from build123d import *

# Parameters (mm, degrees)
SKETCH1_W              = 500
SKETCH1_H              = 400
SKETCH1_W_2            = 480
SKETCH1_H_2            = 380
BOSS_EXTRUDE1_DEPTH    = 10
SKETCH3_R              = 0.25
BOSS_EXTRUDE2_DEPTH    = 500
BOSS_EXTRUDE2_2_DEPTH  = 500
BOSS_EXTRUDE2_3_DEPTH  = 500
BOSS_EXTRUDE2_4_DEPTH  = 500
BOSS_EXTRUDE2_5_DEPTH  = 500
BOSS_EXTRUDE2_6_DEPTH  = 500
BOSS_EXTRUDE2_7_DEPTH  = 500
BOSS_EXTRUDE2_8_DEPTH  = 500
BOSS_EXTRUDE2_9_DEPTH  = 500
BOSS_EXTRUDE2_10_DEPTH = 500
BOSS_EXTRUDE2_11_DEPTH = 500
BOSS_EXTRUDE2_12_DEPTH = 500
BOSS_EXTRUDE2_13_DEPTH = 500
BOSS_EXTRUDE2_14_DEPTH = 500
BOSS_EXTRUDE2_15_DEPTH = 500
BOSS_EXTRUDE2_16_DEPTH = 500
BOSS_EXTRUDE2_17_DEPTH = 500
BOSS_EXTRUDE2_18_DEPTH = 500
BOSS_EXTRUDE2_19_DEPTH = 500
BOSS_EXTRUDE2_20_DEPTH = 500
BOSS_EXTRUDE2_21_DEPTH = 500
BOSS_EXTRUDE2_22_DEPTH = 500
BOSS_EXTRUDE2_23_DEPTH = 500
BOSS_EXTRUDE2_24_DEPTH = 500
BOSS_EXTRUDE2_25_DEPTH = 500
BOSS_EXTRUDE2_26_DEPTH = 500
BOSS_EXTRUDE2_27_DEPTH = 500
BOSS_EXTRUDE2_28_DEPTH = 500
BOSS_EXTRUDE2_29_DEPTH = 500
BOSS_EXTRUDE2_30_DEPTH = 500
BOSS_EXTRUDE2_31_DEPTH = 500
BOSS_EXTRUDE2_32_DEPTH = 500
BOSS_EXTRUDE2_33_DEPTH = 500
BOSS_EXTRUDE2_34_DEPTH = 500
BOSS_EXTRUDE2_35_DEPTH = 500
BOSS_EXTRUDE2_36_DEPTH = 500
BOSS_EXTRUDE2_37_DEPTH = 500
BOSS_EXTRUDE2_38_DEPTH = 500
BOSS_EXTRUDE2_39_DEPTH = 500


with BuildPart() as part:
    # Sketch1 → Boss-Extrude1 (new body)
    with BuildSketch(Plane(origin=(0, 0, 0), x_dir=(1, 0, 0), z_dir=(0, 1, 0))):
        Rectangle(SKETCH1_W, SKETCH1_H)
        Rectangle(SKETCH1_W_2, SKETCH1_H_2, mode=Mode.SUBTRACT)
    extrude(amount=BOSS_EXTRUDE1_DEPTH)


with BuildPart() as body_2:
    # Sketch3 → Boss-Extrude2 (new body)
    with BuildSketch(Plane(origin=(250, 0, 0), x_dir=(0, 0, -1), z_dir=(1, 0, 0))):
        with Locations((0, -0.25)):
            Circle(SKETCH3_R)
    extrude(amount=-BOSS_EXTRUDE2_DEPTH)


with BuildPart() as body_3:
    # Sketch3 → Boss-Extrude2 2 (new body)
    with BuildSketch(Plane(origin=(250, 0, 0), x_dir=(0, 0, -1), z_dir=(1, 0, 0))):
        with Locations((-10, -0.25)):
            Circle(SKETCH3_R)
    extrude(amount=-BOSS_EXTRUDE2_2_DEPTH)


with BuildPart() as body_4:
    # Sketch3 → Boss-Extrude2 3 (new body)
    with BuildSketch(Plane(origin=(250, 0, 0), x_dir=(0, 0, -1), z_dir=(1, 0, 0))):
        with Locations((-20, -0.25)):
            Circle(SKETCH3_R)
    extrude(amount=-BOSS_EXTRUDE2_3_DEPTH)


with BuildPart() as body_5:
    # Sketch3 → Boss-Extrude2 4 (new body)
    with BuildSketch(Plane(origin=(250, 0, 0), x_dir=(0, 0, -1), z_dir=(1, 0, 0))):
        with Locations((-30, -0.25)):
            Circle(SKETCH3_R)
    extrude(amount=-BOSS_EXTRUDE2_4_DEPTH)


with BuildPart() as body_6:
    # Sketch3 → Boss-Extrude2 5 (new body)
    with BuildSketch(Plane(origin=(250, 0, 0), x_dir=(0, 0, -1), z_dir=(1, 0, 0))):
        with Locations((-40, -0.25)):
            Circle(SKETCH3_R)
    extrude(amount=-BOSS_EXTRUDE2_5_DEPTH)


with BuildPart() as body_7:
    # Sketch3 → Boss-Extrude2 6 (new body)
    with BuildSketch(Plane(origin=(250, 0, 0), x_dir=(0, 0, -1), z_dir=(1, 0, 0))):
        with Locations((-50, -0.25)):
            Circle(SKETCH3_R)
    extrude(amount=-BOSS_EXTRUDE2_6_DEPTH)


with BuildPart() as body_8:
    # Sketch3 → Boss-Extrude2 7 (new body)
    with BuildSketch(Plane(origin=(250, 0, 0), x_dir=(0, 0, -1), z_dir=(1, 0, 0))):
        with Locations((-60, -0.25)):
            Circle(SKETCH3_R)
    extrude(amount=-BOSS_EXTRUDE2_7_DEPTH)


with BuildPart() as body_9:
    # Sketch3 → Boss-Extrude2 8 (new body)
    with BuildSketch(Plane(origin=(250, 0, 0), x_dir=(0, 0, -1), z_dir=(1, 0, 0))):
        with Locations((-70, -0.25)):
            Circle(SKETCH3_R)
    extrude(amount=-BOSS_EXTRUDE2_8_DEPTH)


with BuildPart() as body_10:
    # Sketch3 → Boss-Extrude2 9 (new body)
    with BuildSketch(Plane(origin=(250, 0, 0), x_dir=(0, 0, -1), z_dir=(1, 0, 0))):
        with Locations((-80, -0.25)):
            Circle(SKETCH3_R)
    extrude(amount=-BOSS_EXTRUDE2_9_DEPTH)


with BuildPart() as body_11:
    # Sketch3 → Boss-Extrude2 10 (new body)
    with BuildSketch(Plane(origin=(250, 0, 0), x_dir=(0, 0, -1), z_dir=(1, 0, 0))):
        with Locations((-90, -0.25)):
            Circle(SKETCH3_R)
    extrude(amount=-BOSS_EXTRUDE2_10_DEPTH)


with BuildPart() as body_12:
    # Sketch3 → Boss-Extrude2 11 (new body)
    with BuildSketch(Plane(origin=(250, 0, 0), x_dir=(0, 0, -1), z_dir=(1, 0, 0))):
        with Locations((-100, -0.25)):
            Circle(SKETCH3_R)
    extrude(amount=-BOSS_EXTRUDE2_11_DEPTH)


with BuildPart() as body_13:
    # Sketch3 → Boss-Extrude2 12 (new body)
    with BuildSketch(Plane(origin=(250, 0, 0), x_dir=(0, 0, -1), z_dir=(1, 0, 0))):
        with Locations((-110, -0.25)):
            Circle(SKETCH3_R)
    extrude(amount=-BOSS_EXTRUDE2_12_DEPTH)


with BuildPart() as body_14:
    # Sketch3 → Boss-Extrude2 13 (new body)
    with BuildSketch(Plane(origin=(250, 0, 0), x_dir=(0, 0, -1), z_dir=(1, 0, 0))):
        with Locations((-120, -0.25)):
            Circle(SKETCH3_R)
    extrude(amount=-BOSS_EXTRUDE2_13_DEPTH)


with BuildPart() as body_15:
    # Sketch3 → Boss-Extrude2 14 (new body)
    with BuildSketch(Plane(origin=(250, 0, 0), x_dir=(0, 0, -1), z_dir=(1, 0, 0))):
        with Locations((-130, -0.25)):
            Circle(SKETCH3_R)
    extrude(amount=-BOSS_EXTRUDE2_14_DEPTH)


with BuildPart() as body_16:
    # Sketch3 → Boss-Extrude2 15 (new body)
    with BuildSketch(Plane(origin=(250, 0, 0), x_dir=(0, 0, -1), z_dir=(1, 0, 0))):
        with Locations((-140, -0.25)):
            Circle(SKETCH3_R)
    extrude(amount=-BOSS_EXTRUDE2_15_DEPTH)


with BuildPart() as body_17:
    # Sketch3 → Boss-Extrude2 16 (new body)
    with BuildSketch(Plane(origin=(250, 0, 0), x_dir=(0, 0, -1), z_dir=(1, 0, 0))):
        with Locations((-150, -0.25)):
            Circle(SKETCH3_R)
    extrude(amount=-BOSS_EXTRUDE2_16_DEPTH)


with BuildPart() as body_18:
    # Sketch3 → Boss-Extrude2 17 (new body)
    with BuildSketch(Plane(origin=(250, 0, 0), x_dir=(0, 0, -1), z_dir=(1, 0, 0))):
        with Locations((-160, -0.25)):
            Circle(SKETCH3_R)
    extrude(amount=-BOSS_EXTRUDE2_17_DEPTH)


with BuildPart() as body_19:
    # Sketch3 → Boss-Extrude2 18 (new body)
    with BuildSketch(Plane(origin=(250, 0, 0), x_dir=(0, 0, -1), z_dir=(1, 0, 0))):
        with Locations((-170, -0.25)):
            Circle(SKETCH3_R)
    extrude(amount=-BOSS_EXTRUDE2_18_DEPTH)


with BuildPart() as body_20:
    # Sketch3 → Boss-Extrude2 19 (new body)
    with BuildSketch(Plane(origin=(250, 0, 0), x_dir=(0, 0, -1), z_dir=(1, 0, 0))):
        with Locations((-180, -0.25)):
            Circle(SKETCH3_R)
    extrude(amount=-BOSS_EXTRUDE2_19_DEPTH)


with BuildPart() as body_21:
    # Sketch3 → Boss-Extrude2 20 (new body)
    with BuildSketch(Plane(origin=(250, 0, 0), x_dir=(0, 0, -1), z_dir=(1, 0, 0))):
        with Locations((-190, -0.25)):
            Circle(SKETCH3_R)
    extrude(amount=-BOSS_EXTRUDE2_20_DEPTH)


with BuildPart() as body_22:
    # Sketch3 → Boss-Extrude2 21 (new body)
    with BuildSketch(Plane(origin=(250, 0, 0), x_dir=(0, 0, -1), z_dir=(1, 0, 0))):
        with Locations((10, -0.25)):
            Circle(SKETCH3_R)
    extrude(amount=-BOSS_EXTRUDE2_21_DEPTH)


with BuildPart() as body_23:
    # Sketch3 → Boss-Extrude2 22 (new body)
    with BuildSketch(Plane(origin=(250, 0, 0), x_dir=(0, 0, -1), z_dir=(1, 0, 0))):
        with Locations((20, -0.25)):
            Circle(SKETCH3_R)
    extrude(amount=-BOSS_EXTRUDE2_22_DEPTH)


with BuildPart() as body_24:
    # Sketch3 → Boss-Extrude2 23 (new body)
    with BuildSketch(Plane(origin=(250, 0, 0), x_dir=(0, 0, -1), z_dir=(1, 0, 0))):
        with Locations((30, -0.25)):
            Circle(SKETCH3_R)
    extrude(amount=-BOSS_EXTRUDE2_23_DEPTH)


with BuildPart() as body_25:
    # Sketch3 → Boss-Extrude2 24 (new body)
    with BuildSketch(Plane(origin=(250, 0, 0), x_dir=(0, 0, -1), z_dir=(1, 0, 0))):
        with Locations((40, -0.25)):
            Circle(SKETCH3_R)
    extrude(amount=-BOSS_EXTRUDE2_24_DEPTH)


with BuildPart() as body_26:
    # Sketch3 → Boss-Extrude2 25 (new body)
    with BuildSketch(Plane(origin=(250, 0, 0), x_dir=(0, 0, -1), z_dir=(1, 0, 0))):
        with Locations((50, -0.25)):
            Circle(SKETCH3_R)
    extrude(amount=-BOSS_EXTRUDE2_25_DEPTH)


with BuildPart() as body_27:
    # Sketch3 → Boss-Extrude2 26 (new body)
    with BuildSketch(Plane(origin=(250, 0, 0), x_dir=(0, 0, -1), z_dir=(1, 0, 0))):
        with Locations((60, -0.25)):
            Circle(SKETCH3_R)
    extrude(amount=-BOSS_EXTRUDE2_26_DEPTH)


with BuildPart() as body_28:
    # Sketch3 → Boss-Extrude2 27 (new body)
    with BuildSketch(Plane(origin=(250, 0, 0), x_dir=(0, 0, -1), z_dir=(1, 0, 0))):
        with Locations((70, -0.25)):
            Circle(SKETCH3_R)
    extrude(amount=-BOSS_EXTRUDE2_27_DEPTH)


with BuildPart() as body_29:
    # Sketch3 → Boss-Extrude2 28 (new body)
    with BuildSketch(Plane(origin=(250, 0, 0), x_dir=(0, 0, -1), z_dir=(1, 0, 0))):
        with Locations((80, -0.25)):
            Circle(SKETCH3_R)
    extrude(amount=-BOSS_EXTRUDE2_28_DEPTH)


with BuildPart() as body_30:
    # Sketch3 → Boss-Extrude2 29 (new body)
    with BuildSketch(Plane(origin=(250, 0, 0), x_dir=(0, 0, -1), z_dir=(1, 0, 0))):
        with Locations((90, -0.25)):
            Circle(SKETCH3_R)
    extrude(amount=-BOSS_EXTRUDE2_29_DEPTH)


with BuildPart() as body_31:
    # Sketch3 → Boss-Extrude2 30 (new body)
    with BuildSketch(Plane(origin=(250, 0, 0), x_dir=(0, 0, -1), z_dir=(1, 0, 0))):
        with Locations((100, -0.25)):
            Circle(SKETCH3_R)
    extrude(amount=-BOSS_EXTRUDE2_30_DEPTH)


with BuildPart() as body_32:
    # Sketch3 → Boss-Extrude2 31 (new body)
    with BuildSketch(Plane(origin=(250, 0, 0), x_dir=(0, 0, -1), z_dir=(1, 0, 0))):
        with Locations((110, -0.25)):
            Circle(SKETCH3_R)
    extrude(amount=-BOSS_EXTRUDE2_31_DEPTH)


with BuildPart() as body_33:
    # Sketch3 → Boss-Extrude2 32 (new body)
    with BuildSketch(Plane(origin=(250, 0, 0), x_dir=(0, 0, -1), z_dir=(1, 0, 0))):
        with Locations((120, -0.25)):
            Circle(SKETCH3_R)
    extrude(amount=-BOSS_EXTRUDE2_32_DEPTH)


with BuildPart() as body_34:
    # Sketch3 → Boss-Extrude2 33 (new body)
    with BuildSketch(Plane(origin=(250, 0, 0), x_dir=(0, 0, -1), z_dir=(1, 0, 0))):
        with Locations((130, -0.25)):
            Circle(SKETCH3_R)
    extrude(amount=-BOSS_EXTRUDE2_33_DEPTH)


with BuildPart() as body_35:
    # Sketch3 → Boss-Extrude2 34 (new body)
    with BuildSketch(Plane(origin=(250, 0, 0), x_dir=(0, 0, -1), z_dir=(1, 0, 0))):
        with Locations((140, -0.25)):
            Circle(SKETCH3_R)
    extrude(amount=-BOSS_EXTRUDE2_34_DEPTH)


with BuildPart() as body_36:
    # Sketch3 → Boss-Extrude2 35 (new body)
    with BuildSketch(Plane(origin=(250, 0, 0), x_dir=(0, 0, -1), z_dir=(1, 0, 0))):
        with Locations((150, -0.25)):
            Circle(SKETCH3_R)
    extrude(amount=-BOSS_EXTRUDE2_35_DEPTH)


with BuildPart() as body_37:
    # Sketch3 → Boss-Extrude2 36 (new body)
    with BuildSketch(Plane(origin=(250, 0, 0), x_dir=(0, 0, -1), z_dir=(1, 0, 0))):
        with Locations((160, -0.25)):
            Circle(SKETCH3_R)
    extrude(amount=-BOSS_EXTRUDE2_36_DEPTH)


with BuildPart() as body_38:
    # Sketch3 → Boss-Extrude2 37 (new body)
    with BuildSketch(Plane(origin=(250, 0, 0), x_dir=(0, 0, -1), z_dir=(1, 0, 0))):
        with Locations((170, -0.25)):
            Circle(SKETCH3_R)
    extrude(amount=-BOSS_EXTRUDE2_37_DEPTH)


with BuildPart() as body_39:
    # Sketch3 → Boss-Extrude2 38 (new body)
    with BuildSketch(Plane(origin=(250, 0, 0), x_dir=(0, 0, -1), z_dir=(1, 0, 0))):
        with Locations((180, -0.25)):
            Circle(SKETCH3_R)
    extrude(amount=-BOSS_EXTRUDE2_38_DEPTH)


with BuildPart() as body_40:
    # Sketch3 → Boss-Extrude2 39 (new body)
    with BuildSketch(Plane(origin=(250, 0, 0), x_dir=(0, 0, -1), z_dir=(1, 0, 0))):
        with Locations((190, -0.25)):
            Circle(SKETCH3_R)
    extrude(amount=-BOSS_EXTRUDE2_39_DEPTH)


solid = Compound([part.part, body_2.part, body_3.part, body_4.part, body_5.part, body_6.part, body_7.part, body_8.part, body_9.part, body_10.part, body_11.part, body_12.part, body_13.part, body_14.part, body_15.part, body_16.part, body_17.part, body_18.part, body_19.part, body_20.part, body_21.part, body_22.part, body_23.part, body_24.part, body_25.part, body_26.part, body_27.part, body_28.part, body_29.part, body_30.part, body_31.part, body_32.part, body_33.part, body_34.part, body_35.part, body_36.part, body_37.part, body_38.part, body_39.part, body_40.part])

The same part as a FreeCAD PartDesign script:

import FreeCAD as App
import Part
import Sketcher


def add_polygon(sketch, points):
    """Adds a closed chain of lines whose ends are joined by coincident constraints."""
    first, n = sketch.GeometryCount, len(points)
    for a, b in zip(points, points[1:] + points[:1]):
        sketch.addGeometry(Part.LineSegment(App.Vector(*a, 0), App.Vector(*b, 0)), False)
    for i in range(n):
        sketch.addConstraint(Sketcher.Constraint("Coincident", first + i, 2, first + (i + 1) % n, 1))

doc = App.newDocument("Part")
params = doc.addObject("Spreadsheet::Sheet", "Params")
for row, (alias, value) in enumerate([
    ("sketch1_width", "500 mm"),
    ("sketch1_width2", "480 mm"),
    ("sketch1_height", "400 mm"),
    ("sketch1_height2", "380 mm"),
    ("pad1_length", "10 mm"),
    ("sketch2_diameter", "0.5 mm"),
    ("pad2_length", "500 mm"),
    ("sketch3_diameter", "0.5 mm"),
    ("pad3_length", "500 mm"),
    ("sketch4_diameter", "0.5 mm"),
    ("pad4_length", "500 mm"),
    ("sketch5_diameter", "0.5 mm"),
    ("pad5_length", "500 mm"),
    ("sketch6_diameter", "0.5 mm"),
    ("pad6_length", "500 mm"),
    ("sketch7_diameter", "0.5 mm"),
    ("pad7_length", "500 mm"),
    ("sketch8_diameter", "0.5 mm"),
    ("pad8_length", "500 mm"),
    ("sketch9_diameter", "0.5 mm"),
    ("pad9_length", "500 mm"),
    ("sketch10_diameter", "0.5 mm"),
    ("pad10_length", "500 mm"),
    ("sketch11_diameter", "0.5 mm"),
    ("pad11_length", "500 mm"),
    ("sketch12_diameter", "0.5 mm"),
    ("pad12_length", "500 mm"),
    ("sketch13_diameter", "0.5 mm"),
    ("pad13_length", "500 mm"),
    ("sketch14_diameter", "0.5 mm"),
    ("pad14_length", "500 mm"),
    ("sketch15_diameter", "0.5 mm"),
    ("pad15_length", "500 mm"),
    ("sketch16_diameter", "0.5 mm"),
    ("pad16_length", "500 mm"),
    ("sketch17_diameter", "0.5 mm"),
    ("pad17_length", "500 mm"),
    ("sketch18_diameter", "0.5 mm"),
    ("pad18_length", "500 mm"),
    ("sketch19_diameter", "0.5 mm"),
    ("pad19_length", "500 mm"),
    ("sketch20_diameter", "0.5 mm"),
    ("pad20_length", "500 mm"),
    ("sketch21_diameter", "0.5 mm"),
    ("pad21_length", "500 mm"),
    ("sketch22_diameter", "0.5 mm"),
    ("pad22_length", "500 mm"),
    ("sketch23_diameter", "0.5 mm"),
    ("pad23_length", "500 mm"),
    ("sketch24_diameter", "0.5 mm"),
    ("pad24_length", "500 mm"),
    ("sketch25_diameter", "0.5 mm"),
    ("pad25_length", "500 mm"),
    ("sketch26_diameter", "0.5 mm"),
    ("pad26_length", "500 mm"),
    ("sketch27_diameter", "0.5 mm"),
    ("pad27_length", "500 mm"),
    ("sketch28_diameter", "0.5 mm"),
    ("pad28_length", "500 mm"),
    ("sketch29_diameter", "0.5 mm"),
    ("pad29_length", "500 mm"),
    ("sketch30_diameter", "0.5 mm"),
    ("pad30_length", "500 mm"),
    ("sketch31_diameter", "0.5 mm"),
    ("pad31_length", "500 mm"),
    ("sketch32_diameter", "0.5 mm"),
    ("pad32_length", "500 mm"),
    ("sketch33_diameter", "0.5 mm"),
    ("pad33_length", "500 mm"),
    ("sketch34_diameter", "0.5 mm"),
    ("pad34_length", "500 mm"),
    ("sketch35_diameter", "0.5 mm"),
    ("pad35_length", "500 mm"),
    ("sketch36_diameter", "0.5 mm"),
    ("pad36_length", "500 mm"),
    ("sketch37_diameter", "0.5 mm"),
    ("pad37_length", "500 mm"),
    ("sketch38_diameter", "0.5 mm"),
    ("pad38_length", "500 mm"),
    ("sketch39_diameter", "0.5 mm"),
    ("pad39_length", "500 mm"),
    ("sketch40_diameter", "0.5 mm"),
    ("pad40_length", "500 mm"),
], start=1):
    params.set(f"A{row}", alias)
    params.set(f"B{row}", "=" + value)
    params.setAlias(f"B{row}", alias)

body = doc.addObject("PartDesign::Body", "Body")

# Sketch on XZ plane
sketch1 = body.newObject("Sketcher::SketchObject", "Sketch")
sketch1.AttachmentSupport = (doc.getObject("XZ_Plane"), [""])
sketch1.MapMode = "FlatFace"
add_polygon(sketch1, [(-250, -200), (-250, 200), (250, 200), (250, -200)])  # lines 0-3
add_polygon(sketch1, [(240, 190), (-240, 190), (-240, -190), (240, -190)])  # lines 4-7
sketch1.addConstraint([
    Sketcher.Constraint("Vertical", 0),
    Sketcher.Constraint("Horizontal", 1),
    Sketcher.Constraint("Vertical", 2),
    Sketcher.Constraint("Horizontal", 3),
    Sketcher.Constraint("Horizontal", 4),
    Sketcher.Constraint("Vertical", 5),
    Sketcher.Constraint("Horizontal", 6),
    Sketcher.Constraint("Vertical", 7),
    Sketcher.Constraint("Symmetric", 0, 2, 2, 2, -1, 1),
    Sketcher.Constraint("Symmetric", 4, 2, 6, 2, -1, 1),
    Sketcher.Constraint("DistanceX", 1, 1, 1, 2, 500.0),
    Sketcher.Constraint("DistanceX", 4, 2, 4, 1, 480.0),
    Sketcher.Constraint("DistanceY", 0, 1, 0, 2, 400.0),
    Sketcher.Constraint("DistanceY", 5, 2, 5, 1, 380.0),
])
sketch1.setExpression("Constraints[18]", "Params.sketch1_width")
sketch1.setExpression("Constraints[19]", "Params.sketch1_width2")
sketch1.setExpression("Constraints[20]", "Params.sketch1_height")
sketch1.setExpression("Constraints[21]", "Params.sketch1_height2")
pad1 = body.newObject("PartDesign::Pad", "Pad")
pad1.Profile = sketch1
pad1.setExpression("Length", "Params.pad1_length")
pad1.Reversed = True
body2 = doc.addObject("PartDesign::Body", "Body001")

# Sketch on YZ plane
sketch2 = body2.newObject("Sketcher::SketchObject", "Sketch001")
sketch2.AttachmentSupport = (doc.getObject("YZ_Plane001"), [""])
sketch2.MapMode = "FlatFace"
sketch2.AttachmentOffset = App.Placement(App.Vector(0, 0, 250), App.Rotation())
sketch2.addGeometry(Part.Circle(App.Vector(-0.25, 0, 0), App.Vector(0, 0, 1), 0.25), False)
sketch2.addConstraint([
    Sketcher.Constraint("PointOnObject", 0, 3, -1),
    Sketcher.Constraint("Diameter", 0, 0.5),
    Sketcher.Constraint("DistanceX", 0, 3, -1, 1, 0.25),
])
sketch2.setExpression("Constraints[1]", "Params.sketch2_diameter")
pad2 = body2.newObject("PartDesign::Pad", "Pad001")
pad2.Profile = sketch2
pad2.setExpression("Length", "Params.pad2_length")
pad2.Reversed = True
body3 = doc.addObject("PartDesign::Body", "Body002")

# Sketch on YZ plane
sketch3 = body3.newObject("Sketcher::SketchObject", "Sketch002")
sketch3.AttachmentSupport = (doc.getObject("YZ_Plane002"), [""])
sketch3.MapMode = "FlatFace"
sketch3.AttachmentOffset = App.Placement(App.Vector(0, 0, 250), App.Rotation())
sketch3.addGeometry(Part.Circle(App.Vector(-0.25, 10, 0), App.Vector(0, 0, 1), 0.25), False)
sketch3.addConstraint([
    Sketcher.Constraint("Diameter", 0, 0.5),
    Sketcher.Constraint("DistanceY", -1, 1, 0, 3, 10.0),
    Sketcher.Constraint("DistanceX", 0, 3, -1, 1, 0.25),
])
sketch3.setExpression("Constraints[0]", "Params.sketch3_diameter")
pad3 = body3.newObject("PartDesign::Pad", "Pad002")
pad3.Profile = sketch3
pad3.setExpression("Length", "Params.pad3_length")
pad3.Reversed = True
body4 = doc.addObject("PartDesign::Body", "Body003")

# Sketch on YZ plane
sketch4 = body4.newObject("Sketcher::SketchObject", "Sketch003")
sketch4.AttachmentSupport = (doc.getObject("YZ_Plane003"), [""])
sketch4.MapMode = "FlatFace"
sketch4.AttachmentOffset = App.Placement(App.Vector(0, 0, 250), App.Rotation())
sketch4.addGeometry(Part.Circle(App.Vector(-0.25, 20, 0), App.Vector(0, 0, 1), 0.25), False)
sketch4.addConstraint([
    Sketcher.Constraint("Diameter", 0, 0.5),
    Sketcher.Constraint("DistanceY", -1, 1, 0, 3, 20.0),
    Sketcher.Constraint("DistanceX", 0, 3, -1, 1, 0.25),
])
sketch4.setExpression("Constraints[0]", "Params.sketch4_diameter")
pad4 = body4.newObject("PartDesign::Pad", "Pad003")
pad4.Profile = sketch4
pad4.setExpression("Length", "Params.pad4_length")
pad4.Reversed = True
body5 = doc.addObject("PartDesign::Body", "Body004")

# Sketch on YZ plane
sketch5 = body5.newObject("Sketcher::SketchObject", "Sketch004")
sketch5.AttachmentSupport = (doc.getObject("YZ_Plane004"), [""])
sketch5.MapMode = "FlatFace"
sketch5.AttachmentOffset = App.Placement(App.Vector(0, 0, 250), App.Rotation())
sketch5.addGeometry(Part.Circle(App.Vector(-0.25, 30, 0), App.Vector(0, 0, 1), 0.25), False)
sketch5.addConstraint([
    Sketcher.Constraint("Diameter", 0, 0.5),
    Sketcher.Constraint("DistanceY", -1, 1, 0, 3, 30.0),
    Sketcher.Constraint("DistanceX", 0, 3, -1, 1, 0.25),
])
sketch5.setExpression("Constraints[0]", "Params.sketch5_diameter")
pad5 = body5.newObject("PartDesign::Pad", "Pad004")
pad5.Profile = sketch5
pad5.setExpression("Length", "Params.pad5_length")
pad5.Reversed = True
body6 = doc.addObject("PartDesign::Body", "Body005")

# Sketch on YZ plane
sketch6 = body6.newObject("Sketcher::SketchObject", "Sketch005")
sketch6.AttachmentSupport = (doc.getObject("YZ_Plane005"), [""])
sketch6.MapMode = "FlatFace"
sketch6.AttachmentOffset = App.Placement(App.Vector(0, 0, 250), App.Rotation())
sketch6.addGeometry(Part.Circle(App.Vector(-0.25, 40, 0), App.Vector(0, 0, 1), 0.25), False)
sketch6.addConstraint([
    Sketcher.Constraint("Diameter", 0, 0.5),
    Sketcher.Constraint("DistanceY", -1, 1, 0, 3, 40.0),
    Sketcher.Constraint("DistanceX", 0, 3, -1, 1, 0.25),
])
sketch6.setExpression("Constraints[0]", "Params.sketch6_diameter")
pad6 = body6.newObject("PartDesign::Pad", "Pad005")
pad6.Profile = sketch6
pad6.setExpression("Length", "Params.pad6_length")
pad6.Reversed = True
body7 = doc.addObject("PartDesign::Body", "Body006")

# Sketch on YZ plane
sketch7 = body7.newObject("Sketcher::SketchObject", "Sketch006")
sketch7.AttachmentSupport = (doc.getObject("YZ_Plane006"), [""])
sketch7.MapMode = "FlatFace"
sketch7.AttachmentOffset = App.Placement(App.Vector(0, 0, 250), App.Rotation())
sketch7.addGeometry(Part.Circle(App.Vector(-0.25, 50, 0), App.Vector(0, 0, 1), 0.25), False)
sketch7.addConstraint([
    Sketcher.Constraint("Diameter", 0, 0.5),
    Sketcher.Constraint("DistanceY", -1, 1, 0, 3, 50.0),
    Sketcher.Constraint("DistanceX", 0, 3, -1, 1, 0.25),
])
sketch7.setExpression("Constraints[0]", "Params.sketch7_diameter")
pad7 = body7.newObject("PartDesign::Pad", "Pad006")
pad7.Profile = sketch7
pad7.setExpression("Length", "Params.pad7_length")
pad7.Reversed = True
body8 = doc.addObject("PartDesign::Body", "Body007")

# Sketch on YZ plane
sketch8 = body8.newObject("Sketcher::SketchObject", "Sketch007")
sketch8.AttachmentSupport = (doc.getObject("YZ_Plane007"), [""])
sketch8.MapMode = "FlatFace"
sketch8.AttachmentOffset = App.Placement(App.Vector(0, 0, 250), App.Rotation())
sketch8.addGeometry(Part.Circle(App.Vector(-0.25, 60, 0), App.Vector(0, 0, 1), 0.25), False)
sketch8.addConstraint([
    Sketcher.Constraint("Diameter", 0, 0.5),
    Sketcher.Constraint("DistanceY", -1, 1, 0, 3, 60.0),
    Sketcher.Constraint("DistanceX", 0, 3, -1, 1, 0.25),
])
sketch8.setExpression("Constraints[0]", "Params.sketch8_diameter")
pad8 = body8.newObject("PartDesign::Pad", "Pad007")
pad8.Profile = sketch8
pad8.setExpression("Length", "Params.pad8_length")
pad8.Reversed = True
body9 = doc.addObject("PartDesign::Body", "Body008")

# Sketch on YZ plane
sketch9 = body9.newObject("Sketcher::SketchObject", "Sketch008")
sketch9.AttachmentSupport = (doc.getObject("YZ_Plane008"), [""])
sketch9.MapMode = "FlatFace"
sketch9.AttachmentOffset = App.Placement(App.Vector(0, 0, 250), App.Rotation())
sketch9.addGeometry(Part.Circle(App.Vector(-0.25, 70, 0), App.Vector(0, 0, 1), 0.25), False)
sketch9.addConstraint([
    Sketcher.Constraint("Diameter", 0, 0.5),
    Sketcher.Constraint("DistanceY", -1, 1, 0, 3, 70.0),
    Sketcher.Constraint("DistanceX", 0, 3, -1, 1, 0.25),
])
sketch9.setExpression("Constraints[0]", "Params.sketch9_diameter")
pad9 = body9.newObject("PartDesign::Pad", "Pad008")
pad9.Profile = sketch9
pad9.setExpression("Length", "Params.pad9_length")
pad9.Reversed = True
body10 = doc.addObject("PartDesign::Body", "Body009")

# Sketch on YZ plane
sketch10 = body10.newObject("Sketcher::SketchObject", "Sketch009")
sketch10.AttachmentSupport = (doc.getObject("YZ_Plane009"), [""])
sketch10.MapMode = "FlatFace"
sketch10.AttachmentOffset = App.Placement(App.Vector(0, 0, 250), App.Rotation())
sketch10.addGeometry(Part.Circle(App.Vector(-0.25, 80, 0), App.Vector(0, 0, 1), 0.25), False)
sketch10.addConstraint([
    Sketcher.Constraint("Diameter", 0, 0.5),
    Sketcher.Constraint("DistanceY", -1, 1, 0, 3, 80.0),
    Sketcher.Constraint("DistanceX", 0, 3, -1, 1, 0.25),
])
sketch10.setExpression("Constraints[0]", "Params.sketch10_diameter")
pad10 = body10.newObject("PartDesign::Pad", "Pad009")
pad10.Profile = sketch10
pad10.setExpression("Length", "Params.pad10_length")
pad10.Reversed = True
body11 = doc.addObject("PartDesign::Body", "Body010")

# Sketch on YZ plane
sketch11 = body11.newObject("Sketcher::SketchObject", "Sketch010")
sketch11.AttachmentSupport = (doc.getObject("YZ_Plane010"), [""])
sketch11.MapMode = "FlatFace"
sketch11.AttachmentOffset = App.Placement(App.Vector(0, 0, 250), App.Rotation())
sketch11.addGeometry(Part.Circle(App.Vector(-0.25, 90, 0), App.Vector(0, 0, 1), 0.25), False)
sketch11.addConstraint([
    Sketcher.Constraint("Diameter", 0, 0.5),
    Sketcher.Constraint("DistanceY", -1, 1, 0, 3, 90.0),
    Sketcher.Constraint("DistanceX", 0, 3, -1, 1, 0.25),
])
sketch11.setExpression("Constraints[0]", "Params.sketch11_diameter")
pad11 = body11.newObject("PartDesign::Pad", "Pad010")
pad11.Profile = sketch11
pad11.setExpression("Length", "Params.pad11_length")
pad11.Reversed = True
body12 = doc.addObject("PartDesign::Body", "Body011")

# Sketch on YZ plane
sketch12 = body12.newObject("Sketcher::SketchObject", "Sketch011")
sketch12.AttachmentSupport = (doc.getObject("YZ_Plane011"), [""])
sketch12.MapMode = "FlatFace"
sketch12.AttachmentOffset = App.Placement(App.Vector(0, 0, 250), App.Rotation())
sketch12.addGeometry(Part.Circle(App.Vector(-0.25, 100, 0), App.Vector(0, 0, 1), 0.25), False)
sketch12.addConstraint([
    Sketcher.Constraint("Diameter", 0, 0.5),
    Sketcher.Constraint("DistanceY", -1, 1, 0, 3, 100.0),
    Sketcher.Constraint("DistanceX", 0, 3, -1, 1, 0.25),
])
sketch12.setExpression("Constraints[0]", "Params.sketch12_diameter")
pad12 = body12.newObject("PartDesign::Pad", "Pad011")
pad12.Profile = sketch12
pad12.setExpression("Length", "Params.pad12_length")
pad12.Reversed = True
body13 = doc.addObject("PartDesign::Body", "Body012")

# Sketch on YZ plane
sketch13 = body13.newObject("Sketcher::SketchObject", "Sketch012")
sketch13.AttachmentSupport = (doc.getObject("YZ_Plane012"), [""])
sketch13.MapMode = "FlatFace"
sketch13.AttachmentOffset = App.Placement(App.Vector(0, 0, 250), App.Rotation())
sketch13.addGeometry(Part.Circle(App.Vector(-0.25, 110, 0), App.Vector(0, 0, 1), 0.25), False)
sketch13.addConstraint([
    Sketcher.Constraint("Diameter", 0, 0.5),
    Sketcher.Constraint("DistanceY", -1, 1, 0, 3, 110.0),
    Sketcher.Constraint("DistanceX", 0, 3, -1, 1, 0.25),
])
sketch13.setExpression("Constraints[0]", "Params.sketch13_diameter")
pad13 = body13.newObject("PartDesign::Pad", "Pad012")
pad13.Profile = sketch13
pad13.setExpression("Length", "Params.pad13_length")
pad13.Reversed = True
body14 = doc.addObject("PartDesign::Body", "Body013")

# Sketch on YZ plane
sketch14 = body14.newObject("Sketcher::SketchObject", "Sketch013")
sketch14.AttachmentSupport = (doc.getObject("YZ_Plane013"), [""])
sketch14.MapMode = "FlatFace"
sketch14.AttachmentOffset = App.Placement(App.Vector(0, 0, 250), App.Rotation())
sketch14.addGeometry(Part.Circle(App.Vector(-0.25, 120, 0), App.Vector(0, 0, 1), 0.25), False)
sketch14.addConstraint([
    Sketcher.Constraint("Diameter", 0, 0.5),
    Sketcher.Constraint("DistanceY", -1, 1, 0, 3, 120.0),
    Sketcher.Constraint("DistanceX", 0, 3, -1, 1, 0.25),
])
sketch14.setExpression("Constraints[0]", "Params.sketch14_diameter")
pad14 = body14.newObject("PartDesign::Pad", "Pad013")
pad14.Profile = sketch14
pad14.setExpression("Length", "Params.pad14_length")
pad14.Reversed = True
body15 = doc.addObject("PartDesign::Body", "Body014")

# Sketch on YZ plane
sketch15 = body15.newObject("Sketcher::SketchObject", "Sketch014")
sketch15.AttachmentSupport = (doc.getObject("YZ_Plane014"), [""])
sketch15.MapMode = "FlatFace"
sketch15.AttachmentOffset = App.Placement(App.Vector(0, 0, 250), App.Rotation())
sketch15.addGeometry(Part.Circle(App.Vector(-0.25, 130, 0), App.Vector(0, 0, 1), 0.25), False)
sketch15.addConstraint([
    Sketcher.Constraint("Diameter", 0, 0.5),
    Sketcher.Constraint("DistanceY", -1, 1, 0, 3, 130.0),
    Sketcher.Constraint("DistanceX", 0, 3, -1, 1, 0.25),
])
sketch15.setExpression("Constraints[0]", "Params.sketch15_diameter")
pad15 = body15.newObject("PartDesign::Pad", "Pad014")
pad15.Profile = sketch15
pad15.setExpression("Length", "Params.pad15_length")
pad15.Reversed = True
body16 = doc.addObject("PartDesign::Body", "Body015")

# Sketch on YZ plane
sketch16 = body16.newObject("Sketcher::SketchObject", "Sketch015")
sketch16.AttachmentSupport = (doc.getObject("YZ_Plane015"), [""])
sketch16.MapMode = "FlatFace"
sketch16.AttachmentOffset = App.Placement(App.Vector(0, 0, 250), App.Rotation())
sketch16.addGeometry(Part.Circle(App.Vector(-0.25, 140, 0), App.Vector(0, 0, 1), 0.25), False)
sketch16.addConstraint([
    Sketcher.Constraint("Diameter", 0, 0.5),
    Sketcher.Constraint("DistanceY", -1, 1, 0, 3, 140.0),
    Sketcher.Constraint("DistanceX", 0, 3, -1, 1, 0.25),
])
sketch16.setExpression("Constraints[0]", "Params.sketch16_diameter")
pad16 = body16.newObject("PartDesign::Pad", "Pad015")
pad16.Profile = sketch16
pad16.setExpression("Length", "Params.pad16_length")
pad16.Reversed = True
body17 = doc.addObject("PartDesign::Body", "Body016")

# Sketch on YZ plane
sketch17 = body17.newObject("Sketcher::SketchObject", "Sketch016")
sketch17.AttachmentSupport = (doc.getObject("YZ_Plane016"), [""])
sketch17.MapMode = "FlatFace"
sketch17.AttachmentOffset = App.Placement(App.Vector(0, 0, 250), App.Rotation())
sketch17.addGeometry(Part.Circle(App.Vector(-0.25, 150, 0), App.Vector(0, 0, 1), 0.25), False)
sketch17.addConstraint([
    Sketcher.Constraint("Diameter", 0, 0.5),
    Sketcher.Constraint("DistanceY", -1, 1, 0, 3, 150.0),
    Sketcher.Constraint("DistanceX", 0, 3, -1, 1, 0.25),
])
sketch17.setExpression("Constraints[0]", "Params.sketch17_diameter")
pad17 = body17.newObject("PartDesign::Pad", "Pad016")
pad17.Profile = sketch17
pad17.setExpression("Length", "Params.pad17_length")
pad17.Reversed = True
body18 = doc.addObject("PartDesign::Body", "Body017")

# Sketch on YZ plane
sketch18 = body18.newObject("Sketcher::SketchObject", "Sketch017")
sketch18.AttachmentSupport = (doc.getObject("YZ_Plane017"), [""])
sketch18.MapMode = "FlatFace"
sketch18.AttachmentOffset = App.Placement(App.Vector(0, 0, 250), App.Rotation())
sketch18.addGeometry(Part.Circle(App.Vector(-0.25, 160, 0), App.Vector(0, 0, 1), 0.25), False)
sketch18.addConstraint([
    Sketcher.Constraint("Diameter", 0, 0.5),
    Sketcher.Constraint("DistanceY", -1, 1, 0, 3, 160.0),
    Sketcher.Constraint("DistanceX", 0, 3, -1, 1, 0.25),
])
sketch18.setExpression("Constraints[0]", "Params.sketch18_diameter")
pad18 = body18.newObject("PartDesign::Pad", "Pad017")
pad18.Profile = sketch18
pad18.setExpression("Length", "Params.pad18_length")
pad18.Reversed = True
body19 = doc.addObject("PartDesign::Body", "Body018")

# Sketch on YZ plane
sketch19 = body19.newObject("Sketcher::SketchObject", "Sketch018")
sketch19.AttachmentSupport = (doc.getObject("YZ_Plane018"), [""])
sketch19.MapMode = "FlatFace"
sketch19.AttachmentOffset = App.Placement(App.Vector(0, 0, 250), App.Rotation())
sketch19.addGeometry(Part.Circle(App.Vector(-0.25, 170, 0), App.Vector(0, 0, 1), 0.25), False)
sketch19.addConstraint([
    Sketcher.Constraint("Diameter", 0, 0.5),
    Sketcher.Constraint("DistanceY", -1, 1, 0, 3, 170.0),
    Sketcher.Constraint("DistanceX", 0, 3, -1, 1, 0.25),
])
sketch19.setExpression("Constraints[0]", "Params.sketch19_diameter")
pad19 = body19.newObject("PartDesign::Pad", "Pad018")
pad19.Profile = sketch19
pad19.setExpression("Length", "Params.pad19_length")
pad19.Reversed = True
body20 = doc.addObject("PartDesign::Body", "Body019")

# Sketch on YZ plane
sketch20 = body20.newObject("Sketcher::SketchObject", "Sketch019")
sketch20.AttachmentSupport = (doc.getObject("YZ_Plane019"), [""])
sketch20.MapMode = "FlatFace"
sketch20.AttachmentOffset = App.Placement(App.Vector(0, 0, 250), App.Rotation())
sketch20.addGeometry(Part.Circle(App.Vector(-0.25, 180, 0), App.Vector(0, 0, 1), 0.25), False)
sketch20.addConstraint([
    Sketcher.Constraint("Diameter", 0, 0.5),
    Sketcher.Constraint("DistanceY", -1, 1, 0, 3, 180.0),
    Sketcher.Constraint("DistanceX", 0, 3, -1, 1, 0.25),
])
sketch20.setExpression("Constraints[0]", "Params.sketch20_diameter")
pad20 = body20.newObject("PartDesign::Pad", "Pad019")
pad20.Profile = sketch20
pad20.setExpression("Length", "Params.pad20_length")
pad20.Reversed = True
body21 = doc.addObject("PartDesign::Body", "Body020")

# Sketch on YZ plane
sketch21 = body21.newObject("Sketcher::SketchObject", "Sketch020")
sketch21.AttachmentSupport = (doc.getObject("YZ_Plane020"), [""])
sketch21.MapMode = "FlatFace"
sketch21.AttachmentOffset = App.Placement(App.Vector(0, 0, 250), App.Rotation())
sketch21.addGeometry(Part.Circle(App.Vector(-0.25, 190, 0), App.Vector(0, 0, 1), 0.25), False)
sketch21.addConstraint([
    Sketcher.Constraint("Diameter", 0, 0.5),
    Sketcher.Constraint("DistanceY", -1, 1, 0, 3, 190.0),
    Sketcher.Constraint("DistanceX", 0, 3, -1, 1, 0.25),
])
sketch21.setExpression("Constraints[0]", "Params.sketch21_diameter")
pad21 = body21.newObject("PartDesign::Pad", "Pad020")
pad21.Profile = sketch21
pad21.setExpression("Length", "Params.pad21_length")
pad21.Reversed = True
body22 = doc.addObject("PartDesign::Body", "Body021")

# Sketch on YZ plane
sketch22 = body22.newObject("Sketcher::SketchObject", "Sketch021")
sketch22.AttachmentSupport = (doc.getObject("YZ_Plane021"), [""])
sketch22.MapMode = "FlatFace"
sketch22.AttachmentOffset = App.Placement(App.Vector(0, 0, 250), App.Rotation())
sketch22.addGeometry(Part.Circle(App.Vector(-0.25, -10, 0), App.Vector(0, 0, 1), 0.25), False)
sketch22.addConstraint([
    Sketcher.Constraint("Diameter", 0, 0.5),
    Sketcher.Constraint("DistanceY", 0, 3, -1, 1, 10.0),
    Sketcher.Constraint("DistanceX", 0, 3, -1, 1, 0.25),
])
sketch22.setExpression("Constraints[0]", "Params.sketch22_diameter")
pad22 = body22.newObject("PartDesign::Pad", "Pad021")
pad22.Profile = sketch22
pad22.setExpression("Length", "Params.pad22_length")
pad22.Reversed = True
body23 = doc.addObject("PartDesign::Body", "Body022")

# Sketch on YZ plane
sketch23 = body23.newObject("Sketcher::SketchObject", "Sketch022")
sketch23.AttachmentSupport = (doc.getObject("YZ_Plane022"), [""])
sketch23.MapMode = "FlatFace"
sketch23.AttachmentOffset = App.Placement(App.Vector(0, 0, 250), App.Rotation())
sketch23.addGeometry(Part.Circle(App.Vector(-0.25, -20, 0), App.Vector(0, 0, 1), 0.25), False)
sketch23.addConstraint([
    Sketcher.Constraint("Diameter", 0, 0.5),
    Sketcher.Constraint("DistanceY", 0, 3, -1, 1, 20.0),
    Sketcher.Constraint("DistanceX", 0, 3, -1, 1, 0.25),
])
sketch23.setExpression("Constraints[0]", "Params.sketch23_diameter")
pad23 = body23.newObject("PartDesign::Pad", "Pad022")
pad23.Profile = sketch23
pad23.setExpression("Length", "Params.pad23_length")
pad23.Reversed = True
body24 = doc.addObject("PartDesign::Body", "Body023")

# Sketch on YZ plane
sketch24 = body24.newObject("Sketcher::SketchObject", "Sketch023")
sketch24.AttachmentSupport = (doc.getObject("YZ_Plane023"), [""])
sketch24.MapMode = "FlatFace"
sketch24.AttachmentOffset = App.Placement(App.Vector(0, 0, 250), App.Rotation())
sketch24.addGeometry(Part.Circle(App.Vector(-0.25, -30, 0), App.Vector(0, 0, 1), 0.25), False)
sketch24.addConstraint([
    Sketcher.Constraint("Diameter", 0, 0.5),
    Sketcher.Constraint("DistanceY", 0, 3, -1, 1, 30.0),
    Sketcher.Constraint("DistanceX", 0, 3, -1, 1, 0.25),
])
sketch24.setExpression("Constraints[0]", "Params.sketch24_diameter")
pad24 = body24.newObject("PartDesign::Pad", "Pad023")
pad24.Profile = sketch24
pad24.setExpression("Length", "Params.pad24_length")
pad24.Reversed = True
body25 = doc.addObject("PartDesign::Body", "Body024")

# Sketch on YZ plane
sketch25 = body25.newObject("Sketcher::SketchObject", "Sketch024")
sketch25.AttachmentSupport = (doc.getObject("YZ_Plane024"), [""])
sketch25.MapMode = "FlatFace"
sketch25.AttachmentOffset = App.Placement(App.Vector(0, 0, 250), App.Rotation())
sketch25.addGeometry(Part.Circle(App.Vector(-0.25, -40, 0), App.Vector(0, 0, 1), 0.25), False)
sketch25.addConstraint([
    Sketcher.Constraint("Diameter", 0, 0.5),
    Sketcher.Constraint("DistanceY", 0, 3, -1, 1, 40.0),
    Sketcher.Constraint("DistanceX", 0, 3, -1, 1, 0.25),
])
sketch25.setExpression("Constraints[0]", "Params.sketch25_diameter")
pad25 = body25.newObject("PartDesign::Pad", "Pad024")
pad25.Profile = sketch25
pad25.setExpression("Length", "Params.pad25_length")
pad25.Reversed = True
body26 = doc.addObject("PartDesign::Body", "Body025")

# Sketch on YZ plane
sketch26 = body26.newObject("Sketcher::SketchObject", "Sketch025")
sketch26.AttachmentSupport = (doc.getObject("YZ_Plane025"), [""])
sketch26.MapMode = "FlatFace"
sketch26.AttachmentOffset = App.Placement(App.Vector(0, 0, 250), App.Rotation())
sketch26.addGeometry(Part.Circle(App.Vector(-0.25, -50, 0), App.Vector(0, 0, 1), 0.25), False)
sketch26.addConstraint([
    Sketcher.Constraint("Diameter", 0, 0.5),
    Sketcher.Constraint("DistanceY", 0, 3, -1, 1, 50.0),
    Sketcher.Constraint("DistanceX", 0, 3, -1, 1, 0.25),
])
sketch26.setExpression("Constraints[0]", "Params.sketch26_diameter")
pad26 = body26.newObject("PartDesign::Pad", "Pad025")
pad26.Profile = sketch26
pad26.setExpression("Length", "Params.pad26_length")
pad26.Reversed = True
body27 = doc.addObject("PartDesign::Body", "Body026")

# Sketch on YZ plane
sketch27 = body27.newObject("Sketcher::SketchObject", "Sketch026")
sketch27.AttachmentSupport = (doc.getObject("YZ_Plane026"), [""])
sketch27.MapMode = "FlatFace"
sketch27.AttachmentOffset = App.Placement(App.Vector(0, 0, 250), App.Rotation())
sketch27.addGeometry(Part.Circle(App.Vector(-0.25, -60, 0), App.Vector(0, 0, 1), 0.25), False)
sketch27.addConstraint([
    Sketcher.Constraint("Diameter", 0, 0.5),
    Sketcher.Constraint("DistanceY", 0, 3, -1, 1, 60.0),
    Sketcher.Constraint("DistanceX", 0, 3, -1, 1, 0.25),
])
sketch27.setExpression("Constraints[0]", "Params.sketch27_diameter")
pad27 = body27.newObject("PartDesign::Pad", "Pad026")
pad27.Profile = sketch27
pad27.setExpression("Length", "Params.pad27_length")
pad27.Reversed = True
body28 = doc.addObject("PartDesign::Body", "Body027")

# Sketch on YZ plane
sketch28 = body28.newObject("Sketcher::SketchObject", "Sketch027")
sketch28.AttachmentSupport = (doc.getObject("YZ_Plane027"), [""])
sketch28.MapMode = "FlatFace"
sketch28.AttachmentOffset = App.Placement(App.Vector(0, 0, 250), App.Rotation())
sketch28.addGeometry(Part.Circle(App.Vector(-0.25, -70, 0), App.Vector(0, 0, 1), 0.25), False)
sketch28.addConstraint([
    Sketcher.Constraint("Diameter", 0, 0.5),
    Sketcher.Constraint("DistanceY", 0, 3, -1, 1, 70.0),
    Sketcher.Constraint("DistanceX", 0, 3, -1, 1, 0.25),
])
sketch28.setExpression("Constraints[0]", "Params.sketch28_diameter")
pad28 = body28.newObject("PartDesign::Pad", "Pad027")
pad28.Profile = sketch28
pad28.setExpression("Length", "Params.pad28_length")
pad28.Reversed = True
body29 = doc.addObject("PartDesign::Body", "Body028")

# Sketch on YZ plane
sketch29 = body29.newObject("Sketcher::SketchObject", "Sketch028")
sketch29.AttachmentSupport = (doc.getObject("YZ_Plane028"), [""])
sketch29.MapMode = "FlatFace"
sketch29.AttachmentOffset = App.Placement(App.Vector(0, 0, 250), App.Rotation())
sketch29.addGeometry(Part.Circle(App.Vector(-0.25, -80, 0), App.Vector(0, 0, 1), 0.25), False)
sketch29.addConstraint([
    Sketcher.Constraint("Diameter", 0, 0.5),
    Sketcher.Constraint("DistanceY", 0, 3, -1, 1, 80.0),
    Sketcher.Constraint("DistanceX", 0, 3, -1, 1, 0.25),
])
sketch29.setExpression("Constraints[0]", "Params.sketch29_diameter")
pad29 = body29.newObject("PartDesign::Pad", "Pad028")
pad29.Profile = sketch29
pad29.setExpression("Length", "Params.pad29_length")
pad29.Reversed = True
body30 = doc.addObject("PartDesign::Body", "Body029")

# Sketch on YZ plane
sketch30 = body30.newObject("Sketcher::SketchObject", "Sketch029")
sketch30.AttachmentSupport = (doc.getObject("YZ_Plane029"), [""])
sketch30.MapMode = "FlatFace"
sketch30.AttachmentOffset = App.Placement(App.Vector(0, 0, 250), App.Rotation())
sketch30.addGeometry(Part.Circle(App.Vector(-0.25, -90, 0), App.Vector(0, 0, 1), 0.25), False)
sketch30.addConstraint([
    Sketcher.Constraint("Diameter", 0, 0.5),
    Sketcher.Constraint("DistanceY", 0, 3, -1, 1, 90.0),
    Sketcher.Constraint("DistanceX", 0, 3, -1, 1, 0.25),
])
sketch30.setExpression("Constraints[0]", "Params.sketch30_diameter")
pad30 = body30.newObject("PartDesign::Pad", "Pad029")
pad30.Profile = sketch30
pad30.setExpression("Length", "Params.pad30_length")
pad30.Reversed = True
body31 = doc.addObject("PartDesign::Body", "Body030")

# Sketch on YZ plane
sketch31 = body31.newObject("Sketcher::SketchObject", "Sketch030")
sketch31.AttachmentSupport = (doc.getObject("YZ_Plane030"), [""])
sketch31.MapMode = "FlatFace"
sketch31.AttachmentOffset = App.Placement(App.Vector(0, 0, 250), App.Rotation())
sketch31.addGeometry(Part.Circle(App.Vector(-0.25, -100, 0), App.Vector(0, 0, 1), 0.25), False)
sketch31.addConstraint([
    Sketcher.Constraint("Diameter", 0, 0.5),
    Sketcher.Constraint("DistanceY", 0, 3, -1, 1, 100.0),
    Sketcher.Constraint("DistanceX", 0, 3, -1, 1, 0.25),
])
sketch31.setExpression("Constraints[0]", "Params.sketch31_diameter")
pad31 = body31.newObject("PartDesign::Pad", "Pad030")
pad31.Profile = sketch31
pad31.setExpression("Length", "Params.pad31_length")
pad31.Reversed = True
body32 = doc.addObject("PartDesign::Body", "Body031")

# Sketch on YZ plane
sketch32 = body32.newObject("Sketcher::SketchObject", "Sketch031")
sketch32.AttachmentSupport = (doc.getObject("YZ_Plane031"), [""])
sketch32.MapMode = "FlatFace"
sketch32.AttachmentOffset = App.Placement(App.Vector(0, 0, 250), App.Rotation())
sketch32.addGeometry(Part.Circle(App.Vector(-0.25, -110, 0), App.Vector(0, 0, 1), 0.25), False)
sketch32.addConstraint([
    Sketcher.Constraint("Diameter", 0, 0.5),
    Sketcher.Constraint("DistanceY", 0, 3, -1, 1, 110.0),
    Sketcher.Constraint("DistanceX", 0, 3, -1, 1, 0.25),
])
sketch32.setExpression("Constraints[0]", "Params.sketch32_diameter")
pad32 = body32.newObject("PartDesign::Pad", "Pad031")
pad32.Profile = sketch32
pad32.setExpression("Length", "Params.pad32_length")
pad32.Reversed = True
body33 = doc.addObject("PartDesign::Body", "Body032")

# Sketch on YZ plane
sketch33 = body33.newObject("Sketcher::SketchObject", "Sketch032")
sketch33.AttachmentSupport = (doc.getObject("YZ_Plane032"), [""])
sketch33.MapMode = "FlatFace"
sketch33.AttachmentOffset = App.Placement(App.Vector(0, 0, 250), App.Rotation())
sketch33.addGeometry(Part.Circle(App.Vector(-0.25, -120, 0), App.Vector(0, 0, 1), 0.25), False)
sketch33.addConstraint([
    Sketcher.Constraint("Diameter", 0, 0.5),
    Sketcher.Constraint("DistanceY", 0, 3, -1, 1, 120.0),
    Sketcher.Constraint("DistanceX", 0, 3, -1, 1, 0.25),
])
sketch33.setExpression("Constraints[0]", "Params.sketch33_diameter")
pad33 = body33.newObject("PartDesign::Pad", "Pad032")
pad33.Profile = sketch33
pad33.setExpression("Length", "Params.pad33_length")
pad33.Reversed = True
body34 = doc.addObject("PartDesign::Body", "Body033")

# Sketch on YZ plane
sketch34 = body34.newObject("Sketcher::SketchObject", "Sketch033")
sketch34.AttachmentSupport = (doc.getObject("YZ_Plane033"), [""])
sketch34.MapMode = "FlatFace"
sketch34.AttachmentOffset = App.Placement(App.Vector(0, 0, 250), App.Rotation())
sketch34.addGeometry(Part.Circle(App.Vector(-0.25, -130, 0), App.Vector(0, 0, 1), 0.25), False)
sketch34.addConstraint([
    Sketcher.Constraint("Diameter", 0, 0.5),
    Sketcher.Constraint("DistanceY", 0, 3, -1, 1, 130.0),
    Sketcher.Constraint("DistanceX", 0, 3, -1, 1, 0.25),
])
sketch34.setExpression("Constraints[0]", "Params.sketch34_diameter")
pad34 = body34.newObject("PartDesign::Pad", "Pad033")
pad34.Profile = sketch34
pad34.setExpression("Length", "Params.pad34_length")
pad34.Reversed = True
body35 = doc.addObject("PartDesign::Body", "Body034")

# Sketch on YZ plane
sketch35 = body35.newObject("Sketcher::SketchObject", "Sketch034")
sketch35.AttachmentSupport = (doc.getObject("YZ_Plane034"), [""])
sketch35.MapMode = "FlatFace"
sketch35.AttachmentOffset = App.Placement(App.Vector(0, 0, 250), App.Rotation())
sketch35.addGeometry(Part.Circle(App.Vector(-0.25, -140, 0), App.Vector(0, 0, 1), 0.25), False)
sketch35.addConstraint([
    Sketcher.Constraint("Diameter", 0, 0.5),
    Sketcher.Constraint("DistanceY", 0, 3, -1, 1, 140.0),
    Sketcher.Constraint("DistanceX", 0, 3, -1, 1, 0.25),
])
sketch35.setExpression("Constraints[0]", "Params.sketch35_diameter")
pad35 = body35.newObject("PartDesign::Pad", "Pad034")
pad35.Profile = sketch35
pad35.setExpression("Length", "Params.pad35_length")
pad35.Reversed = True
body36 = doc.addObject("PartDesign::Body", "Body035")

# Sketch on YZ plane
sketch36 = body36.newObject("Sketcher::SketchObject", "Sketch035")
sketch36.AttachmentSupport = (doc.getObject("YZ_Plane035"), [""])
sketch36.MapMode = "FlatFace"
sketch36.AttachmentOffset = App.Placement(App.Vector(0, 0, 250), App.Rotation())
sketch36.addGeometry(Part.Circle(App.Vector(-0.25, -150, 0), App.Vector(0, 0, 1), 0.25), False)
sketch36.addConstraint([
    Sketcher.Constraint("Diameter", 0, 0.5),
    Sketcher.Constraint("DistanceY", 0, 3, -1, 1, 150.0),
    Sketcher.Constraint("DistanceX", 0, 3, -1, 1, 0.25),
])
sketch36.setExpression("Constraints[0]", "Params.sketch36_diameter")
pad36 = body36.newObject("PartDesign::Pad", "Pad035")
pad36.Profile = sketch36
pad36.setExpression("Length", "Params.pad36_length")
pad36.Reversed = True
body37 = doc.addObject("PartDesign::Body", "Body036")

# Sketch on YZ plane
sketch37 = body37.newObject("Sketcher::SketchObject", "Sketch036")
sketch37.AttachmentSupport = (doc.getObject("YZ_Plane036"), [""])
sketch37.MapMode = "FlatFace"
sketch37.AttachmentOffset = App.Placement(App.Vector(0, 0, 250), App.Rotation())
sketch37.addGeometry(Part.Circle(App.Vector(-0.25, -160, 0), App.Vector(0, 0, 1), 0.25), False)
sketch37.addConstraint([
    Sketcher.Constraint("Diameter", 0, 0.5),
    Sketcher.Constraint("DistanceY", 0, 3, -1, 1, 160.0),
    Sketcher.Constraint("DistanceX", 0, 3, -1, 1, 0.25),
])
sketch37.setExpression("Constraints[0]", "Params.sketch37_diameter")
pad37 = body37.newObject("PartDesign::Pad", "Pad036")
pad37.Profile = sketch37
pad37.setExpression("Length", "Params.pad37_length")
pad37.Reversed = True
body38 = doc.addObject("PartDesign::Body", "Body037")

# Sketch on YZ plane
sketch38 = body38.newObject("Sketcher::SketchObject", "Sketch037")
sketch38.AttachmentSupport = (doc.getObject("YZ_Plane037"), [""])
sketch38.MapMode = "FlatFace"
sketch38.AttachmentOffset = App.Placement(App.Vector(0, 0, 250), App.Rotation())
sketch38.addGeometry(Part.Circle(App.Vector(-0.25, -170, 0), App.Vector(0, 0, 1), 0.25), False)
sketch38.addConstraint([
    Sketcher.Constraint("Diameter", 0, 0.5),
    Sketcher.Constraint("DistanceY", 0, 3, -1, 1, 170.0),
    Sketcher.Constraint("DistanceX", 0, 3, -1, 1, 0.25),
])
sketch38.setExpression("Constraints[0]", "Params.sketch38_diameter")
pad38 = body38.newObject("PartDesign::Pad", "Pad037")
pad38.Profile = sketch38
pad38.setExpression("Length", "Params.pad38_length")
pad38.Reversed = True
body39 = doc.addObject("PartDesign::Body", "Body038")

# Sketch on YZ plane
sketch39 = body39.newObject("Sketcher::SketchObject", "Sketch038")
sketch39.AttachmentSupport = (doc.getObject("YZ_Plane038"), [""])
sketch39.MapMode = "FlatFace"
sketch39.AttachmentOffset = App.Placement(App.Vector(0, 0, 250), App.Rotation())
sketch39.addGeometry(Part.Circle(App.Vector(-0.25, -180, 0), App.Vector(0, 0, 1), 0.25), False)
sketch39.addConstraint([
    Sketcher.Constraint("Diameter", 0, 0.5),
    Sketcher.Constraint("DistanceY", 0, 3, -1, 1, 180.0),
    Sketcher.Constraint("DistanceX", 0, 3, -1, 1, 0.25),
])
sketch39.setExpression("Constraints[0]", "Params.sketch39_diameter")
pad39 = body39.newObject("PartDesign::Pad", "Pad038")
pad39.Profile = sketch39
pad39.setExpression("Length", "Params.pad39_length")
pad39.Reversed = True
body40 = doc.addObject("PartDesign::Body", "Body039")

# Sketch on YZ plane
sketch40 = body40.newObject("Sketcher::SketchObject", "Sketch039")
sketch40.AttachmentSupport = (doc.getObject("YZ_Plane039"), [""])
sketch40.MapMode = "FlatFace"
sketch40.AttachmentOffset = App.Placement(App.Vector(0, 0, 250), App.Rotation())
sketch40.addGeometry(Part.Circle(App.Vector(-0.25, -190, 0), App.Vector(0, 0, 1), 0.25), False)
sketch40.addConstraint([
    Sketcher.Constraint("Diameter", 0, 0.5),
    Sketcher.Constraint("DistanceY", 0, 3, -1, 1, 190.0),
    Sketcher.Constraint("DistanceX", 0, 3, -1, 1, 0.25),
])
sketch40.setExpression("Constraints[0]", "Params.sketch40_diameter")
pad40 = body40.newObject("PartDesign::Pad", "Pad039")
pad40.Profile = sketch40
pad40.setExpression("Length", "Params.pad40_length")
pad40.Reversed = True

doc.recompute()
